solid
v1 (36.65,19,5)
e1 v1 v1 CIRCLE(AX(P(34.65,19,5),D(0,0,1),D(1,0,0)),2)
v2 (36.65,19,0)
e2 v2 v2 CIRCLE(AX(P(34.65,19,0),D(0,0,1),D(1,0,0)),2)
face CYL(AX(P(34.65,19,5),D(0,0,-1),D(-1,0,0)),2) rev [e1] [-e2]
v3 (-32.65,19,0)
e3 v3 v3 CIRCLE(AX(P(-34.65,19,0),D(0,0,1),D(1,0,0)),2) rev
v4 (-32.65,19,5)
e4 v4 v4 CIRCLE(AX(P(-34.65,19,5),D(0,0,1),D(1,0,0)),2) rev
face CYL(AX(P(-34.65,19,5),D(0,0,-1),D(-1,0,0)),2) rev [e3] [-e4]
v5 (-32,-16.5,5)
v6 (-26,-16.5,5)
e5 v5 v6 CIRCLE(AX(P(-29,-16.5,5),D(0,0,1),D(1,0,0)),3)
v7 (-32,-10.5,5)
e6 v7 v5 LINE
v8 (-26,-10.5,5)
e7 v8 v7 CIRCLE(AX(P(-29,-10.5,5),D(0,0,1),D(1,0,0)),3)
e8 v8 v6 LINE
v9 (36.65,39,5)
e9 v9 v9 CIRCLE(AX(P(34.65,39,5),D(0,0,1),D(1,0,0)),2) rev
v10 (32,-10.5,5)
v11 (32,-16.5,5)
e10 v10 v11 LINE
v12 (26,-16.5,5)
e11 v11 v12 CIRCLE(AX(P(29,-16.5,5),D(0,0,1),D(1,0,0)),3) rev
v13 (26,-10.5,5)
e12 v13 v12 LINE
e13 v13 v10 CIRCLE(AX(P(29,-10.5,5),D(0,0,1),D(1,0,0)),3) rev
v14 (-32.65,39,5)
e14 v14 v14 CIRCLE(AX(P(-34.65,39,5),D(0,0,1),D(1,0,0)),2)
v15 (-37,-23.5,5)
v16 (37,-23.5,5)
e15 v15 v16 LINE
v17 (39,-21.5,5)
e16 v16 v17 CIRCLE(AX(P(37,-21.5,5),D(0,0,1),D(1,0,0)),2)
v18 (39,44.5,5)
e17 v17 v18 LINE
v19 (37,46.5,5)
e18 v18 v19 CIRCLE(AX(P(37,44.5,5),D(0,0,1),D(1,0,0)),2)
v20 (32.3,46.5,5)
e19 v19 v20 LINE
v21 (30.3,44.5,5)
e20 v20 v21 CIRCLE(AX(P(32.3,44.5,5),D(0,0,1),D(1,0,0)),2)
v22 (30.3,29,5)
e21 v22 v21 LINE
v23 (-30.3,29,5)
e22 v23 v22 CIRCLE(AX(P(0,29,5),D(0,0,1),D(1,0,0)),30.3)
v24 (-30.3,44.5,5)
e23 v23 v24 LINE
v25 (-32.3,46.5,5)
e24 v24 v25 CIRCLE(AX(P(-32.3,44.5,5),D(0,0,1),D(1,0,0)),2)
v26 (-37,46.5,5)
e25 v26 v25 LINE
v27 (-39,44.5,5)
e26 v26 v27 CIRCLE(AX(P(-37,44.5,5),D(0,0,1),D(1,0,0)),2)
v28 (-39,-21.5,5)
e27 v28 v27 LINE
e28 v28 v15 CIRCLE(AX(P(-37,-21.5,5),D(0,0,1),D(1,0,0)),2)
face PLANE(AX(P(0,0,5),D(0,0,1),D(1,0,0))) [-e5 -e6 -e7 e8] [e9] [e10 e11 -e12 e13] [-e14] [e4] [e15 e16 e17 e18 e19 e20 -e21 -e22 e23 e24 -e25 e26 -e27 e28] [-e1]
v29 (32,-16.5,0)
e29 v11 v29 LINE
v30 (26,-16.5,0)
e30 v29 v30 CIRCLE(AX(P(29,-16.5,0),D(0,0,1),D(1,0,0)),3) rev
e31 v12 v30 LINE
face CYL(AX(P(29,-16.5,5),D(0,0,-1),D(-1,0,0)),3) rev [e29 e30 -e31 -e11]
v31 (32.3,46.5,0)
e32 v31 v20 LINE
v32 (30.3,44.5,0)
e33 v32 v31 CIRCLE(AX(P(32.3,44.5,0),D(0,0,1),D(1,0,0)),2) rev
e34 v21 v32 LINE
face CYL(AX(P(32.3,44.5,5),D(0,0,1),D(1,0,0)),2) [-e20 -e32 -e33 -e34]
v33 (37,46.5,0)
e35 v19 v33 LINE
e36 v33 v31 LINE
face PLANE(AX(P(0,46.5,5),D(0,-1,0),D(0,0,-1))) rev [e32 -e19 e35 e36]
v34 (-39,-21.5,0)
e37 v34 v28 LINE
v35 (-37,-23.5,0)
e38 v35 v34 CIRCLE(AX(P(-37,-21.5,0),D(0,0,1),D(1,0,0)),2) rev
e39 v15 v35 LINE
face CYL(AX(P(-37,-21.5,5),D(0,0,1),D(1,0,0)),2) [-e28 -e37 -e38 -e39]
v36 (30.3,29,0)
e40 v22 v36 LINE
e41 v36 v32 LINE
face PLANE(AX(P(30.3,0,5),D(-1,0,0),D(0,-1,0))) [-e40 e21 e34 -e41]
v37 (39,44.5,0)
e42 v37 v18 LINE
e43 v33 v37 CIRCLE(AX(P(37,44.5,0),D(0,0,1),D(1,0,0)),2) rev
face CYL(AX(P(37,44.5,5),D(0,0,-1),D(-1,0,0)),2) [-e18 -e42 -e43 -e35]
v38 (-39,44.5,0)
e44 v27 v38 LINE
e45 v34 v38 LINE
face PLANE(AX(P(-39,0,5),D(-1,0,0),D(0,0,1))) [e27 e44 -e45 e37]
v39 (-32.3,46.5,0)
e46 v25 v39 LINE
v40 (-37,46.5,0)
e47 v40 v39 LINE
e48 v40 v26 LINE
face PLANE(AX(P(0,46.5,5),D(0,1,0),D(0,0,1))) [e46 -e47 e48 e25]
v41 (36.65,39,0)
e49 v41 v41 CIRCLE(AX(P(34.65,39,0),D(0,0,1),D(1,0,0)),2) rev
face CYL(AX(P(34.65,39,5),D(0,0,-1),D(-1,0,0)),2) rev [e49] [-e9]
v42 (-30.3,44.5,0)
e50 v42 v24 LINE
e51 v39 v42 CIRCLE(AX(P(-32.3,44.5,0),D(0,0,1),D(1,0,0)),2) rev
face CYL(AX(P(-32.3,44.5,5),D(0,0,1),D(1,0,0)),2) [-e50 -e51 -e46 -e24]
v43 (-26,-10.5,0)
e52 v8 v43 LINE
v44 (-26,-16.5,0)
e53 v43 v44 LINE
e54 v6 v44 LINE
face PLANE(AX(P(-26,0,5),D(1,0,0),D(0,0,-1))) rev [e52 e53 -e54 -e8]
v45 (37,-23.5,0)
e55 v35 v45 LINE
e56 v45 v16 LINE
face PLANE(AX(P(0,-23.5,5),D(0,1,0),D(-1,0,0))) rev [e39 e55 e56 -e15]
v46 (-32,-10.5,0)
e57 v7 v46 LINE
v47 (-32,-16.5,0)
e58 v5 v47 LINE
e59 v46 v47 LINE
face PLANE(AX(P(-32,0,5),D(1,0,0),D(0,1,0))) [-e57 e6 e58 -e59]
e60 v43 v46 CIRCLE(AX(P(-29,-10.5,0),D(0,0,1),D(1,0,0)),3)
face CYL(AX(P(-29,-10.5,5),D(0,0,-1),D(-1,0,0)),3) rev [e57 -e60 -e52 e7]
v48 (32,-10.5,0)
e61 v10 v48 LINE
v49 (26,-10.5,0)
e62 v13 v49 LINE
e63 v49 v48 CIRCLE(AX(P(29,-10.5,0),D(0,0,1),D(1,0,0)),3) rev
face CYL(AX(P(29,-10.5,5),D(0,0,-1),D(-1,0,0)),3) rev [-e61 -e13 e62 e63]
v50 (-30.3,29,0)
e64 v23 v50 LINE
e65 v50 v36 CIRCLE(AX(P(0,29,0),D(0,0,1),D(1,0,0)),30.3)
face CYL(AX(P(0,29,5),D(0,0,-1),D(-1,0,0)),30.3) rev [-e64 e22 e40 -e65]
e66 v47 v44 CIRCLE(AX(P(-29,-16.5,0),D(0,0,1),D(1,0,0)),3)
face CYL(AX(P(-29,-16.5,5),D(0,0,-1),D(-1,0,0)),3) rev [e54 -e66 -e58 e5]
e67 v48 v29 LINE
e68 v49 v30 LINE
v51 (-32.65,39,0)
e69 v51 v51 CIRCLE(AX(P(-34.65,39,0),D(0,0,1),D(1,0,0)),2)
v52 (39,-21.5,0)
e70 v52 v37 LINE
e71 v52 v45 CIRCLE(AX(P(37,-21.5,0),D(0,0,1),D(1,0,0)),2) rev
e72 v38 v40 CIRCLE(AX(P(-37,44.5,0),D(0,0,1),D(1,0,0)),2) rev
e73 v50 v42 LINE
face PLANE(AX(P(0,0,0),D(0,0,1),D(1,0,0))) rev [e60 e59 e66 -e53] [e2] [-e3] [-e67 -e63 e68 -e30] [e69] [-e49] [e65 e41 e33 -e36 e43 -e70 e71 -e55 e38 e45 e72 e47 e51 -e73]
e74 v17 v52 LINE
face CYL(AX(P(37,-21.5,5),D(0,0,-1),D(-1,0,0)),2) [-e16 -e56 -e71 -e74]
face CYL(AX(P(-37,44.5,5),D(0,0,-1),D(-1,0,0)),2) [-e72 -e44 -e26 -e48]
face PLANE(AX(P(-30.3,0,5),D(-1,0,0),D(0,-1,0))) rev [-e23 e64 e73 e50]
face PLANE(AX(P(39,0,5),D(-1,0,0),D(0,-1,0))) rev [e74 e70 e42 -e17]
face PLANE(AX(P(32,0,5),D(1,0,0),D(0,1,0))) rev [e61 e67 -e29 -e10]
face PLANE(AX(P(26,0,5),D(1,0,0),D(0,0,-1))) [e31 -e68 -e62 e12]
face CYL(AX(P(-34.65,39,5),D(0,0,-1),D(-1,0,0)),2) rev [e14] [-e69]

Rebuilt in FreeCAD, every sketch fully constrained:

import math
import FreeCAD as App
import Part
import Sketcher
from FreeCAD import Vector


def edges_at(feature, points):
    """Names of the edges that pass closest to the given points."""
    edges = feature.Shape.Edges
    near = lambda p: min(range(len(edges)), key=lambda i: edges[i].distToShape(Part.Vertex(*p))[0])
    return sorted({f"Edge{near(p) + 1}" for p in points})

doc = App.newDocument("Part")
body = doc.addObject("PartDesign::Body", "Body")

# Sketch on XY plane
sketch1 = body.newObject("Sketcher::SketchObject", "Sketch")
sketch1.AttachmentSupport = (doc.getObject("XY_Plane"), [""])
sketch1.MapMode = "FlatFace"
sketch1.addGeometry([
    Part.LineSegment(Vector(-39, -23.5, 0), Vector(39, -23.5, 0)),  # 0
    Part.LineSegment(Vector(39, -23.5, 0), Vector(39, 46.5, 0)),  # 1
    Part.LineSegment(Vector(39, 46.5, 0), Vector(30.3, 46.5, 0)),  # 2
    Part.LineSegment(Vector(30.3, 46.5, 0), Vector(30.3, 29, 0)),  # 3
    Part.ArcOfCircle(Part.Circle(Vector(0, 29, 0), Vector(0, 0, 1), 30.3), math.radians(180), math.radians(360)),  # 4
    Part.LineSegment(Vector(-30.3, 29, 0), Vector(-30.3, 46.5, 0)),  # 5
    Part.LineSegment(Vector(-30.3, 46.5, 0), Vector(-39, 46.5, 0)),  # 6
    Part.LineSegment(Vector(-39, 46.5, 0), Vector(-39, -23.5, 0)),  # 7
    Part.LineSegment(Vector(-32, -16.5, 0), Vector(-32, -10.5, 0)),  # 8
    Part.ArcOfCircle(Part.Circle(Vector(-29, -10.5, 0), Vector(0, 0, 1), 3), math.radians(0), math.radians(180)),  # 9
    Part.LineSegment(Vector(-26, -10.5, 0), Vector(-26, -16.5, 0)),  # 10
    Part.ArcOfCircle(Part.Circle(Vector(-29, -16.5, 0), Vector(0, 0, 1), 3), math.radians(180), math.radians(360)),  # 11
    Part.LineSegment(Vector(26, -16.5, 0), Vector(26, -10.5, 0)),  # 12
    Part.ArcOfCircle(Part.Circle(Vector(29, -10.5, 0), Vector(0, 0, 1), 3), math.radians(0), math.radians(180)),  # 13
    Part.LineSegment(Vector(32, -10.5, 0), Vector(32, -16.5, 0)),  # 14
    Part.ArcOfCircle(Part.Circle(Vector(29, -16.5, 0), Vector(0, 0, 1), 3), math.radians(180), math.radians(360)),  # 15
    Part.Circle(Vector(-34.6, 19, 0), Vector(0, 0, 1), 2),  # 16
    Part.Circle(Vector(-34.6, 39, 0), Vector(0, 0, 1), 2),  # 17
    Part.Circle(Vector(34.6, 19, 0), Vector(0, 0, 1), 2),  # 18
    Part.Circle(Vector(34.6, 39, 0), Vector(0, 0, 1), 2),  # 19
], False)
sketch1.addConstraint([
    Sketcher.Constraint("Coincident", 0, 2, 1, 1),
    Sketcher.Constraint("Coincident", 1, 2, 2, 1),
    Sketcher.Constraint("Coincident", 2, 2, 3, 1),
    Sketcher.Constraint("Tangent", 3, 2, 4, 2),
    Sketcher.Constraint("Tangent", 4, 1, 5, 1),
    Sketcher.Constraint("Coincident", 5, 2, 6, 1),
    Sketcher.Constraint("Coincident", 6, 2, 7, 1),
    Sketcher.Constraint("Coincident", 7, 2, 0, 1),
    Sketcher.Constraint("Tangent", 8, 2, 9, 2),
    Sketcher.Constraint("Tangent", 9, 1, 10, 1),
    Sketcher.Constraint("Tangent", 10, 2, 11, 2),
    Sketcher.Constraint("Tangent", 11, 1, 8, 1),
    Sketcher.Constraint("Tangent", 12, 2, 13, 2),
    Sketcher.Constraint("Tangent", 13, 1, 14, 1),
    Sketcher.Constraint("Tangent", 14, 2, 15, 2),
    Sketcher.Constraint("Tangent", 15, 1, 12, 1),
    Sketcher.Constraint("Horizontal", 0),
    Sketcher.Constraint("Vertical", 1),
    Sketcher.Constraint("Horizontal", 2),
    Sketcher.Constraint("Vertical", 3),
    Sketcher.Constraint("Vertical", 5),
    Sketcher.Constraint("Horizontal", 6),
    Sketcher.Constraint("Vertical", 7),
    Sketcher.Constraint("Vertical", 8),
    Sketcher.Constraint("Vertical", 10),
    Sketcher.Constraint("Vertical", 12),
    Sketcher.Constraint("Vertical", 14),
    Sketcher.Constraint("Equal", 11, 13),
    Sketcher.Constraint("Equal", 16, 17),
    Sketcher.Constraint("Equal", 17, 18),
    Sketcher.Constraint("Equal", 18, 19),
    Sketcher.Constraint("Symmetric", 9, 3, 13, 3, -2),
    Sketcher.Constraint("Symmetric", 16, 3, 18, 3, -2),
    Sketcher.Constraint("Symmetric", 17, 3, 19, 3, -2),
    Sketcher.Constraint("Symmetric", 2, 2, 5, 2, -2),
    Sketcher.Constraint("Horizontal", 11, 3, 15, 3),
    Sketcher.Constraint("Vertical", 16, 3, 17, 3),
    Sketcher.Constraint("Equal", 2, 6),
    Sketcher.Constraint("Diameter", 16, 4.0),
    Sketcher.Constraint("Radius", 9, 3.0),
    Sketcher.Constraint("Radius", 4, 30.3),
    Sketcher.Constraint("DistanceX", 0, 1, 0, 2, 78.0),
    Sketcher.Constraint("DistanceY", 1, 1, 1, 2, 70.0),
    Sketcher.Constraint("DistanceY", 8, 1, 8, 2, 6.0),
    Sketcher.Constraint("DistanceY", 3, 2, 3, 1, 17.5),
    Sketcher.Constraint("DistanceY", -1, 1, 4, 3, 29.0),
    Sketcher.Constraint("DistanceX", 9, 3, -1, 1, 29.0),
    Sketcher.Constraint("DistanceY", -1, 1, 16, 3, 19.0),
    Sketcher.Constraint("DistanceY", -1, 1, 17, 3, 39.0),
    Sketcher.Constraint("DistanceY", 0, 2, 15, 3, 7.0),
    Sketcher.Constraint("DistanceX", 16, 3, 18, 3, 69.3),
])
pad1 = body.newObject("PartDesign::Pad", "Pad")
pad1.Profile = sketch1
pad1.Length = 5
doc.recompute()

fillet = body.newObject("PartDesign::Fillet", "Fillet")
fillet.Base = (pad1, edges_at(pad1, [
    (30.3, 46.5, 2.5),
    (39, 46.5, 2.5),
    (39, -23.5, 2.5),
    (-39, -23.5, 2.5),
    (-39, 46.5, 2.5),
    (-30.3, 46.5, 2.5),
]))
fillet.Radius = 2

doc.recompute()
